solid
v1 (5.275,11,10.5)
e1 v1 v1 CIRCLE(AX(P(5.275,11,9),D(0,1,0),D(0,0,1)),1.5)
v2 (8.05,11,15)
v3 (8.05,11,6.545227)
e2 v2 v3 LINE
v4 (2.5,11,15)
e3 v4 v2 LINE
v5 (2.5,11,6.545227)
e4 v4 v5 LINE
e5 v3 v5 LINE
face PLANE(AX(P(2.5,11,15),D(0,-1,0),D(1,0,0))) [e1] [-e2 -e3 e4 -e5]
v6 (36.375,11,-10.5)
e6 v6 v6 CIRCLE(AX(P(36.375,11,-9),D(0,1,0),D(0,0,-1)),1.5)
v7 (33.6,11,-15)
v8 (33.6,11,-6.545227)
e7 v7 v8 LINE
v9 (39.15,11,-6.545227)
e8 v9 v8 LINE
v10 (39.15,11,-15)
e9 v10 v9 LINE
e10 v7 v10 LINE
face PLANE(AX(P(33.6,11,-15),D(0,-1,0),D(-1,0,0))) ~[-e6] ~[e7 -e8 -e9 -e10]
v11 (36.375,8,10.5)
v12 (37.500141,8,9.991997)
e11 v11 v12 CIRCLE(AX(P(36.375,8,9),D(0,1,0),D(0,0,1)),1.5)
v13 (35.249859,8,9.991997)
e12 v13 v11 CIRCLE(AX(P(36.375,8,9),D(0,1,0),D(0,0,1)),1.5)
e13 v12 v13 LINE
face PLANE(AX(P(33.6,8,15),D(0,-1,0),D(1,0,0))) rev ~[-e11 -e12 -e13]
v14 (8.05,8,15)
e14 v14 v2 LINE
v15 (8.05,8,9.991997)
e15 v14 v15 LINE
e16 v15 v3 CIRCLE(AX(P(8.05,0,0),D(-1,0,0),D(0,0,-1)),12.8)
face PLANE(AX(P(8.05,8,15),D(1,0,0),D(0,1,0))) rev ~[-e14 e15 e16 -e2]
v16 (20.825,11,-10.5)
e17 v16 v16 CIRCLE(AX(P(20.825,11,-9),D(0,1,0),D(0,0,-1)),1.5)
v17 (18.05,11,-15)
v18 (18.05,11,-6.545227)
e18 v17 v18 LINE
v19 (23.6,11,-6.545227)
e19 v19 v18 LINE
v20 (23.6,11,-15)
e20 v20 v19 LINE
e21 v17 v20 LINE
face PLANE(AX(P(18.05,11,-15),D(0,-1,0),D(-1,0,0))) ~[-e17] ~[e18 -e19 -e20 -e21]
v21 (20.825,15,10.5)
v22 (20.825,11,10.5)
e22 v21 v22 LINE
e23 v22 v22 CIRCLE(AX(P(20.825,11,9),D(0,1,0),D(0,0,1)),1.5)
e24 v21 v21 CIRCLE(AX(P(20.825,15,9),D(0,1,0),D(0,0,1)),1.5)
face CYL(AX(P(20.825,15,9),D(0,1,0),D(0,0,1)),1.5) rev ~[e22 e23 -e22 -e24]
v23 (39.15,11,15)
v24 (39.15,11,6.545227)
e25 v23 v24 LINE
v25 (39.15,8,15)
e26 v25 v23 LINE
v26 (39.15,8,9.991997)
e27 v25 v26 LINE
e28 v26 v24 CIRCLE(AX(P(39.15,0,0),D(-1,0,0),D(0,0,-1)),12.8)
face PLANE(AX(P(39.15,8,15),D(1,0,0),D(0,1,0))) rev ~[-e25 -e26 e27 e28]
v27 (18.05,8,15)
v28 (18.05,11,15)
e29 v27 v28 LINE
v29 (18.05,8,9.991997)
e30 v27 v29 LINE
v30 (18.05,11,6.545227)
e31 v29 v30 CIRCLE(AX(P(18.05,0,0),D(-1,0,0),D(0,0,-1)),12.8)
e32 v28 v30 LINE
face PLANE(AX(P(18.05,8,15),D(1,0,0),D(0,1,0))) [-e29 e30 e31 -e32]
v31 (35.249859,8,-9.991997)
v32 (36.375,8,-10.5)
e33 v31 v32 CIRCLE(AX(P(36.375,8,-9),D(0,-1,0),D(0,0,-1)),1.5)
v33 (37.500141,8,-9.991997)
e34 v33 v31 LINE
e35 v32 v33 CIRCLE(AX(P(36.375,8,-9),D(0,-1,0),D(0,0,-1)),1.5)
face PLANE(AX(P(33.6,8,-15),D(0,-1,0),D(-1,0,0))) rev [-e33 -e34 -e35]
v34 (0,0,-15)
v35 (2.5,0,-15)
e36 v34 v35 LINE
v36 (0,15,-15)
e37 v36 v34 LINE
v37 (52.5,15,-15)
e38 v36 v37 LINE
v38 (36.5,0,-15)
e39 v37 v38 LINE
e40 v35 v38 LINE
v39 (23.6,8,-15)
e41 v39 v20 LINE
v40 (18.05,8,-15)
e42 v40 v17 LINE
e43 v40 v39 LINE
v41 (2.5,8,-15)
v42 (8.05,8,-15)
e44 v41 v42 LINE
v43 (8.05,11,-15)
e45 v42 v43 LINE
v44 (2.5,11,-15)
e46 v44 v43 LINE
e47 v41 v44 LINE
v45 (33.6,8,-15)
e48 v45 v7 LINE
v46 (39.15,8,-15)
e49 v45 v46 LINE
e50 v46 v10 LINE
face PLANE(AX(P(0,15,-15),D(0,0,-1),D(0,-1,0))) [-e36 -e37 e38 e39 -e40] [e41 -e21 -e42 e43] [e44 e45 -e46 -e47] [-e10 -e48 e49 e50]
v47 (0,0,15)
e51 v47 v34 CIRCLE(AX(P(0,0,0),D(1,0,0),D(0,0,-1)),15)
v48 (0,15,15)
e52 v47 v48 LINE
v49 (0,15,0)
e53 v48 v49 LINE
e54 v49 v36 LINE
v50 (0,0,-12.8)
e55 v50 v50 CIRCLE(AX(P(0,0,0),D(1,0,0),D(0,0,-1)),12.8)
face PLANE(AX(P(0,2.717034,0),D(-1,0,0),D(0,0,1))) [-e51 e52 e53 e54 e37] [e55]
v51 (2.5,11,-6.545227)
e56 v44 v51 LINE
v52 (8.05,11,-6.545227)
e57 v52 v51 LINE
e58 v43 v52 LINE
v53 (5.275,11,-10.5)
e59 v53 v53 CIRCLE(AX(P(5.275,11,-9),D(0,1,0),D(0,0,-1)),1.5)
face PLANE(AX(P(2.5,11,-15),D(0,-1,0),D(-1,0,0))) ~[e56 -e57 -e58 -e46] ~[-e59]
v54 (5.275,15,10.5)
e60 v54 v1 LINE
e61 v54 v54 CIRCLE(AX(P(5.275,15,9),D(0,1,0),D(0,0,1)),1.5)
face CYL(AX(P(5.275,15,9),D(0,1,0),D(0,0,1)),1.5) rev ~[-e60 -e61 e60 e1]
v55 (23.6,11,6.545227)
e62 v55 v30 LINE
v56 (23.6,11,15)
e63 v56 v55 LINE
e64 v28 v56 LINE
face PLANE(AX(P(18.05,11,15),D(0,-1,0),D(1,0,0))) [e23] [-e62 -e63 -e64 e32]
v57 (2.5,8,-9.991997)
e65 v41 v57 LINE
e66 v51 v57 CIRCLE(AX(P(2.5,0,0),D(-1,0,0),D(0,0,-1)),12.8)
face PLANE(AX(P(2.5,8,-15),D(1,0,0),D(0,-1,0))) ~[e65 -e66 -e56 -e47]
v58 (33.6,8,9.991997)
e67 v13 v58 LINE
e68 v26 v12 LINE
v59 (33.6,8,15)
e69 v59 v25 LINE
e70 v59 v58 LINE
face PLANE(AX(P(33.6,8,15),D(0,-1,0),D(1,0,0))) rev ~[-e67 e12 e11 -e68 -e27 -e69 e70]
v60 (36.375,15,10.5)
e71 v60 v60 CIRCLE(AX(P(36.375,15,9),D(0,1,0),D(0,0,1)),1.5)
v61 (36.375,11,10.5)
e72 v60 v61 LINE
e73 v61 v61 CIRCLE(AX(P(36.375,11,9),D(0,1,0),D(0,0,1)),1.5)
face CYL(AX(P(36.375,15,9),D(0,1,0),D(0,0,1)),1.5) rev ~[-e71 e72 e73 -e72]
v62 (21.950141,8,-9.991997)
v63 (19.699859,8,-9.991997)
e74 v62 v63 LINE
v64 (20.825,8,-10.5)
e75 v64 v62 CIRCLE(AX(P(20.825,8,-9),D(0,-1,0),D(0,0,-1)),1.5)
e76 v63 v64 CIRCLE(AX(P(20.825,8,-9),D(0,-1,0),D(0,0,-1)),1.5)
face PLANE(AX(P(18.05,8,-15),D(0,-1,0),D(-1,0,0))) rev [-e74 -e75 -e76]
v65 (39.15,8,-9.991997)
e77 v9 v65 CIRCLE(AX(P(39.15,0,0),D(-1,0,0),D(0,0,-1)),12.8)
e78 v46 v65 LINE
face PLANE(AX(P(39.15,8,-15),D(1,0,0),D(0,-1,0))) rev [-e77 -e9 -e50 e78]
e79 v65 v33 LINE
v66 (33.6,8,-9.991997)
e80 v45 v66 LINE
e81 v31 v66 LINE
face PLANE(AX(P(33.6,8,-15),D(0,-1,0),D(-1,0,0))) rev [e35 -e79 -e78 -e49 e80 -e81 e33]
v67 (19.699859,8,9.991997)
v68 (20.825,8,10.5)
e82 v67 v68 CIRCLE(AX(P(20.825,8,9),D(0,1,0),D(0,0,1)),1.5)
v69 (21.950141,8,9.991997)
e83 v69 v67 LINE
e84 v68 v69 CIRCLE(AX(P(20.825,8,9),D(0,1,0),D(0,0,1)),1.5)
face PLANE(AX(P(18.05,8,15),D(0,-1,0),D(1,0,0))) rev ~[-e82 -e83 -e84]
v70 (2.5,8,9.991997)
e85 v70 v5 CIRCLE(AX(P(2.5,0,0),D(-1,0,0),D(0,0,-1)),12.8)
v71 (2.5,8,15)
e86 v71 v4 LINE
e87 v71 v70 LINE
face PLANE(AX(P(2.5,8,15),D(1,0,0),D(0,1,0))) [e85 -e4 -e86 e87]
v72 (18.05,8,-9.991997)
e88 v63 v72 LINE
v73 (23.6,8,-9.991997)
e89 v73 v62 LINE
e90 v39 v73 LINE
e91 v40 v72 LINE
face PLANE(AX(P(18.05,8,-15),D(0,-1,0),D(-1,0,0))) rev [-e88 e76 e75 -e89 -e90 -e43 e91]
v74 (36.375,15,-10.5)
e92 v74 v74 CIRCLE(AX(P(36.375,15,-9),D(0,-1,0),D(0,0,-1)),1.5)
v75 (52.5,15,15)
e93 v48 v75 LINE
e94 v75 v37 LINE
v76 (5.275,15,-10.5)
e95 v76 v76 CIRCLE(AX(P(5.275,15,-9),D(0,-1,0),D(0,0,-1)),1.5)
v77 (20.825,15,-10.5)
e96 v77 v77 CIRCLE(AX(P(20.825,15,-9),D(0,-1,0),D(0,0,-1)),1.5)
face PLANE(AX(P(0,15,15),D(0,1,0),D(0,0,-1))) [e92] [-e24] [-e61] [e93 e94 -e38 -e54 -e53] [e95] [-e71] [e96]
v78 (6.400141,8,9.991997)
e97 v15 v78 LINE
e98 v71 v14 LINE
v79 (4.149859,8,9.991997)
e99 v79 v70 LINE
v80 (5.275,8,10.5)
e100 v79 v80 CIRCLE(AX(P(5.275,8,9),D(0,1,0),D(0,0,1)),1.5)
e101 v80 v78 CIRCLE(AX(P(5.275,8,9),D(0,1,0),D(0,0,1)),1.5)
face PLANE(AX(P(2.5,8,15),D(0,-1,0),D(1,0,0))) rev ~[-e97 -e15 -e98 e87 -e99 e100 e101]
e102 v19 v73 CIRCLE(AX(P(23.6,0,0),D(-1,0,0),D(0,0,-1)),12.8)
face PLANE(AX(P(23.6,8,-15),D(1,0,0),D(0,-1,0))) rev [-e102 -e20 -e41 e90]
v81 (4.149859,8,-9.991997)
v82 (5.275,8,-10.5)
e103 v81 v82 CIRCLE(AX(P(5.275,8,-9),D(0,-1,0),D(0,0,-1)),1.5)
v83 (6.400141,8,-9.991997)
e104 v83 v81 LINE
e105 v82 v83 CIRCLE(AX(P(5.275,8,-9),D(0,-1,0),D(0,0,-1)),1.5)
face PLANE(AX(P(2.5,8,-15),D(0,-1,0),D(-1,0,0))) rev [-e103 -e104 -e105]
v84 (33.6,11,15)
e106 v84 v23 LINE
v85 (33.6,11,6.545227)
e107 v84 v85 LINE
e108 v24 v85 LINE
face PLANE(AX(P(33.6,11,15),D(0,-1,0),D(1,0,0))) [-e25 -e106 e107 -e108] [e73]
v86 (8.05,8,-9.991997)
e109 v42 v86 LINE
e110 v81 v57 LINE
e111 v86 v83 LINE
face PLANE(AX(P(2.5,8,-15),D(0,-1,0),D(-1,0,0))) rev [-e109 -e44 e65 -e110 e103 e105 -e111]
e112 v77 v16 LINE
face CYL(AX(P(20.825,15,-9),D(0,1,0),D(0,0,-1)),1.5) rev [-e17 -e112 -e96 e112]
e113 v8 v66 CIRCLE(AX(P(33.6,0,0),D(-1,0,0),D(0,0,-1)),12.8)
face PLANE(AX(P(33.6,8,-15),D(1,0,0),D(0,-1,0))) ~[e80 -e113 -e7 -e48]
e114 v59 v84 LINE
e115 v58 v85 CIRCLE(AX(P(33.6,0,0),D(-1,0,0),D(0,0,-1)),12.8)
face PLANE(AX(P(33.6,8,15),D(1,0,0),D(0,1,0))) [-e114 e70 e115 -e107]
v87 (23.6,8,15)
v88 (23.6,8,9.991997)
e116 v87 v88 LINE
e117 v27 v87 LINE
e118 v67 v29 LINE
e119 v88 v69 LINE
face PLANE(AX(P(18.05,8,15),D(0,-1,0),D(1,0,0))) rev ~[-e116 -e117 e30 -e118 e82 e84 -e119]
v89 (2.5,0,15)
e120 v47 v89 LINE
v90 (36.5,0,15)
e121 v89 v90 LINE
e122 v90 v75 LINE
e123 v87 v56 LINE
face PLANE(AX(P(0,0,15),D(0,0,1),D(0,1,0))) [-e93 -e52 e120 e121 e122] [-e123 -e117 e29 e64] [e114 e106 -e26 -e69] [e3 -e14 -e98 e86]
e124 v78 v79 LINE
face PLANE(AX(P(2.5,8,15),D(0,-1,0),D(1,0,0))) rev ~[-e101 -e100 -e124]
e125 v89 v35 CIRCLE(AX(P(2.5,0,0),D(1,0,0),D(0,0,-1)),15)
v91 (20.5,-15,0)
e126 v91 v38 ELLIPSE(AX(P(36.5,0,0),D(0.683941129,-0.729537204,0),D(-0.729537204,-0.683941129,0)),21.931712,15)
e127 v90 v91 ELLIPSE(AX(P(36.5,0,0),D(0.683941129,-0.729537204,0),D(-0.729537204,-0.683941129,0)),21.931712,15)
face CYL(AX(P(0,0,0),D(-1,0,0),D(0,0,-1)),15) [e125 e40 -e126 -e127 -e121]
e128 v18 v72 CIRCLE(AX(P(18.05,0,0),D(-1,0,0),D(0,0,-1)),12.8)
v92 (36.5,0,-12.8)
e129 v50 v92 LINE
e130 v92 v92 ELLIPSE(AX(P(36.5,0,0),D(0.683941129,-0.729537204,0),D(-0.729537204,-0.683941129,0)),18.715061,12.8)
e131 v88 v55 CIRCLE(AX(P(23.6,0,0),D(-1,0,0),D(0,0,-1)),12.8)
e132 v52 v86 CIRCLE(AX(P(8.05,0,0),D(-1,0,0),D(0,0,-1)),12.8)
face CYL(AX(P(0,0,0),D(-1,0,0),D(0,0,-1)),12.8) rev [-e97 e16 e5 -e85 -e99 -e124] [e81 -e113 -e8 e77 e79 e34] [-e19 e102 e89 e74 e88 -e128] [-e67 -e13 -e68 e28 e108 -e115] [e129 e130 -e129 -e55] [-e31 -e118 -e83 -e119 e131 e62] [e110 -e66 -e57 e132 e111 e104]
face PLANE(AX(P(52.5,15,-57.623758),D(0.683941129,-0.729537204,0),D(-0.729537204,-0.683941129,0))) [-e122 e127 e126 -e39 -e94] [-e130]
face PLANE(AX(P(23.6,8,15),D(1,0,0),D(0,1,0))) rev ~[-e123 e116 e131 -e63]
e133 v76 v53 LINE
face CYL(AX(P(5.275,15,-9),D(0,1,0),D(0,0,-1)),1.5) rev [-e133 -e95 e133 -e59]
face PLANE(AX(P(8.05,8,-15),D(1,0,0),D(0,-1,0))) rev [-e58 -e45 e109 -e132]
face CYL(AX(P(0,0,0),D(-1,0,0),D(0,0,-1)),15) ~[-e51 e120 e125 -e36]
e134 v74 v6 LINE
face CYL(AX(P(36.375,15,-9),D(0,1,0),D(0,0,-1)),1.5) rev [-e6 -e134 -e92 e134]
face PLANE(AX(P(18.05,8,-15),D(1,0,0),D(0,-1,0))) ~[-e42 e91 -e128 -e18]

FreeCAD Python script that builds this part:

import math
import FreeCAD as App
import Part
import Sketcher
from FreeCAD import Vector


def add_polygon(sketch, points):
    """Adds a closed chain of lines whose ends are joined by coincident constraints."""
    first, n = sketch.GeometryCount, len(points)
    for a, b in zip(points, points[1:] + points[:1]):
        sketch.addGeometry(Part.LineSegment(App.Vector(*a, 0), App.Vector(*b, 0)), False)
    for i in range(n):
        sketch.addConstraint(Sketcher.Constraint("Coincident", first + i, 2, first + (i + 1) % n, 1))

doc = App.newDocument("Part")
params = doc.addObject("Spreadsheet::Sheet", "Params")
for row, (alias, value) in enumerate([
    ("sketch1_diameter", "30 mm"),
    ("sketch1_diameter2", "25.7 mm"),
    ("pad1_length", "2.5 mm"),
    ("sketch2_radius", "15 mm"),
    ("sketch2_diameter", "25.6 mm"),
    ("sketch2_width", "15 mm"),
    ("pad2_length", "50 mm"),
    ("pad2_length2", "2.5 mm"),
    ("sketch3_width", "32 mm"),
    ("sketch3_height", "30 mm"),
    ("sketch4_height", "3 mm"),
    ("sketch4_width", "5.55 mm"),
    ("pocket2_length", "9 mm"),
    ("sketch5_diameter", "3 mm"),
    ("pocket3_length", "7 mm"),
], start=1):
    params.set(f"A{row}", alias)
    params.set(f"B{row}", "=" + value)
    params.setAlias(f"B{row}", alias)

body = doc.addObject("PartDesign::Body", "Body")

# Sketch on YZ plane
sketch1 = body.newObject("Sketcher::SketchObject", "Sketch")
sketch1.AttachmentSupport = (doc.getObject("YZ_Plane"), [""])
sketch1.MapMode = "FlatFace"
sketch1.addGeometry([
    Part.Circle(Vector(0, 0, 0), Vector(0, 0, 1), 15),
    Part.Circle(Vector(0, 0, 0), Vector(0, 0, 1), 13),
], False)
sketch1.addConstraint([
    Sketcher.Constraint("Coincident", 0, 3, -1, 1),
    Sketcher.Constraint("Coincident", 1, 3, -1, 1),
    Sketcher.Constraint("Diameter", 0, 30.0),
    Sketcher.Constraint("Diameter", 1, 25.7),
])
sketch1.setExpression("Constraints[2]", "Params.sketch1_diameter")
sketch1.setExpression("Constraints[3]", "Params.sketch1_diameter2")
pad1 = body.newObject("PartDesign::Pad", "Pad")
pad1.Profile = sketch1
pad1.setExpression("Length", "Params.pad1_length")

# Sketch on YZ plane
sketch2 = body.newObject("Sketcher::SketchObject", "Sketch001")
sketch2.AttachmentSupport = (doc.getObject("YZ_Plane"), [""])
sketch2.MapMode = "FlatFace"
sketch2.AttachmentOffset = App.Placement(Vector(0, 0, 2.5), App.Rotation())
sketch2.addGeometry([
    Part.LineSegment(Vector(15, -15, 0), Vector(15, 15, 0)),  # 0
    Part.LineSegment(Vector(15, 15, 0), Vector(0, 15, 0)),  # 1
    Part.ArcOfCircle(Part.Circle(Vector(0, 0, 0), Vector(0, 0, 1), 15), math.radians(90), math.radians(270)),  # 2
    Part.LineSegment(Vector(0, -15, 0), Vector(15, -15, 0)),  # 3
    Part.Circle(Vector(0, 0, 0), Vector(0, 0, 1), 13),  # 4
], False)
sketch2.addConstraint([
    Sketcher.Constraint("Coincident", 0, 2, 1, 1),
    Sketcher.Constraint("Tangent", 1, 2, 2, 1),
    Sketcher.Constraint("Tangent", 2, 2, 3, 1),
    Sketcher.Constraint("Coincident", 3, 2, 0, 1),
    Sketcher.Constraint("Vertical", 0),
    Sketcher.Constraint("Horizontal", 1),
    Sketcher.Constraint("Horizontal", 3),
    Sketcher.Constraint("Coincident", 2, 3, -1, 1),
    Sketcher.Constraint("Coincident", 4, 3, -1, 1),
    Sketcher.Constraint("Radius", 2, 15.0),
    Sketcher.Constraint("Diameter", 4, 25.6),
    Sketcher.Constraint("DistanceX", 1, 2, 1, 1, 15.0),
])
sketch2.setExpression("Constraints[9]", "Params.sketch2_radius")
sketch2.setExpression("Constraints[10]", "Params.sketch2_diameter")
sketch2.setExpression("Constraints[11]", "Params.sketch2_width")
pad2 = body.newObject("PartDesign::Pad", "Pad001")
pad2.Profile = sketch2
pad2.Type = "TwoLengths"
pad2.setExpression("Length", "Params.pad2_length")
pad2.setExpression("Length2", "Params.pad2_length2")

# Sketch on XY plane
sketch3 = body.newObject("Sketcher::SketchObject", "Sketch002")
sketch3.AttachmentSupport = (doc.getObject("XY_Plane"), [""])
sketch3.MapMode = "FlatFace"
add_polygon(sketch3, [(52, 15), (20, -15), (52, -15)])  # lines 0-2
sketch3.addConstraint([
    Sketcher.Constraint("Horizontal", 1),
    Sketcher.Constraint("Vertical", 2),
    Sketcher.Constraint("DistanceX", 1, 1, 1, 2, 32.0),
    Sketcher.Constraint("DistanceY", 2, 1, 2, 2, 30.0),
    Sketcher.Constraint("DistanceY", 0, 2, -1, 1, 15.0),
    Sketcher.Constraint("DistanceX", -1, 1, 0, 2, 20.5),
])
sketch3.setExpression("Constraints[5]", "Params.sketch3_width")
sketch3.setExpression("Constraints[6]", "Params.sketch3_height")
pocket1 = body.newObject("PartDesign::Pocket", "Pocket")
pocket1.Profile = sketch3
pocket1.Type = "ThroughAll"
pocket1.Midplane = True

# Sketch on XY plane
sketch4 = body.newObject("Sketcher::SketchObject", "Sketch003")
sketch4.AttachmentSupport = (doc.getObject("XY_Plane"), [""])
sketch4.MapMode = "FlatFace"
sketch4.AttachmentOffset = App.Placement(Vector(0, 0, 15), App.Rotation())
add_polygon(sketch4, [(2.5, 11), (2.5, 8), (8.1, 8), (8.1, 11)])  # lines 0-3
add_polygon(sketch4, [(18.1, 11), (18.1, 8), (23.6, 8), (23.6, 11)])  # lines 4-7
add_polygon(sketch4, [(33.6, 11), (33.6, 8), (39.1, 8), (39.1, 11)])  # lines 8-11
sketch4.addConstraint([
    Sketcher.Constraint("Vertical", 0),
    Sketcher.Constraint("Horizontal", 1),
    Sketcher.Constraint("Vertical", 2),
    Sketcher.Constraint("Horizontal", 3),
    Sketcher.Constraint("Vertical", 4),
    Sketcher.Constraint("Horizontal", 5),
    Sketcher.Constraint("Vertical", 6),
    Sketcher.Constraint("Horizontal", 7),
    Sketcher.Constraint("Vertical", 8),
    Sketcher.Constraint("Horizontal", 9),
    Sketcher.Constraint("Vertical", 10),
    Sketcher.Constraint("Horizontal", 11),
    Sketcher.Constraint("Horizontal", 1, 2, 4, 2),
    Sketcher.Constraint("Horizontal", 3, 2, 6, 2),
    Sketcher.Constraint("Horizontal", 5, 2, 8, 2),
    Sketcher.Constraint("Horizontal", 7, 2, 10, 2),
    Sketcher.Constraint("Equal", 3, 5),
    Sketcher.Constraint("Equal", 7, 9),
    Sketcher.Constraint("DistanceY", 0, 2, 0, 1, 3.0),
    Sketcher.Constraint("DistanceY", -1, 1, 0, 2, 8.0),
    Sketcher.Constraint("DistanceX", 1, 2, 4, 2, 10.0),
    Sketcher.Constraint("DistanceX", 5, 2, 8, 2, 10.0),
    Sketcher.Constraint("DistanceX", 1, 1, 1, 2, 5.55),
    Sketcher.Constraint("DistanceX", -1, 1, 0, 2, 2.5),
])
sketch4.setExpression("Constraints[30]", "Params.sketch4_height")
sketch4.setExpression("Constraints[34]", "Params.sketch4_width")
pocket2 = body.newObject("PartDesign::Pocket", "Pocket001")
pocket2.Profile = sketch4
pocket2.setExpression("Length", "Params.pocket2_length")

# Sketch on XZ plane
sketch5 = body.newObject("Sketcher::SketchObject", "Sketch004")
sketch5.AttachmentSupport = (doc.getObject("XZ_Plane"), [""])
sketch5.MapMode = "FlatFace"
sketch5.AttachmentOffset = App.Placement(Vector(0, 0, -15), App.Rotation())
sketch5.addGeometry([
    Part.Circle(Vector(5.3, 9, 0), Vector(0, 0, 1), 1.5),
    Part.Circle(Vector(20.8, 9, 0), Vector(0, 0, 1), 1.5),
    Part.Circle(Vector(36.4, 9, 0), Vector(0, 0, 1), 1.5),
], False)
sketch5.addConstraint([
    Sketcher.Constraint("Equal", 0, 1),
    Sketcher.Constraint("Equal", 1, 2),
    Sketcher.Constraint("Horizontal", 0, 3, 1, 3),
    Sketcher.Constraint("Horizontal", 1, 3, 2, 3),
    Sketcher.Constraint("Diameter", 0, 3.0),
    Sketcher.Constraint("DistanceY", -1, 1, 0, 3, 9.0),
    Sketcher.Constraint("DistanceX", 0, 3, 2, 3, 31.1),
    Sketcher.Constraint("DistanceX", 0, 3, 1, 3, 15.55),
    Sketcher.Constraint("DistanceX", -1, 1, 0, 3, 5.275),
])
sketch5.setExpression("Constraints[4]", "Params.sketch5_diameter")
pocket3 = body.newObject("PartDesign::Pocket", "Pocket002")
pocket3.Profile = sketch5
pocket3.setExpression("Length", "Params.pocket3_length")
pocket3.Reversed = True
doc.recompute()

mirrored = body.newObject("PartDesign::Mirrored", "Mirrored")
mirrored.Originals = [pocket2, pocket3]
mirrored.MirrorPlane = (doc.getObject("XY_Plane"), [""])
body.Tip = mirrored

doc.recompute()
